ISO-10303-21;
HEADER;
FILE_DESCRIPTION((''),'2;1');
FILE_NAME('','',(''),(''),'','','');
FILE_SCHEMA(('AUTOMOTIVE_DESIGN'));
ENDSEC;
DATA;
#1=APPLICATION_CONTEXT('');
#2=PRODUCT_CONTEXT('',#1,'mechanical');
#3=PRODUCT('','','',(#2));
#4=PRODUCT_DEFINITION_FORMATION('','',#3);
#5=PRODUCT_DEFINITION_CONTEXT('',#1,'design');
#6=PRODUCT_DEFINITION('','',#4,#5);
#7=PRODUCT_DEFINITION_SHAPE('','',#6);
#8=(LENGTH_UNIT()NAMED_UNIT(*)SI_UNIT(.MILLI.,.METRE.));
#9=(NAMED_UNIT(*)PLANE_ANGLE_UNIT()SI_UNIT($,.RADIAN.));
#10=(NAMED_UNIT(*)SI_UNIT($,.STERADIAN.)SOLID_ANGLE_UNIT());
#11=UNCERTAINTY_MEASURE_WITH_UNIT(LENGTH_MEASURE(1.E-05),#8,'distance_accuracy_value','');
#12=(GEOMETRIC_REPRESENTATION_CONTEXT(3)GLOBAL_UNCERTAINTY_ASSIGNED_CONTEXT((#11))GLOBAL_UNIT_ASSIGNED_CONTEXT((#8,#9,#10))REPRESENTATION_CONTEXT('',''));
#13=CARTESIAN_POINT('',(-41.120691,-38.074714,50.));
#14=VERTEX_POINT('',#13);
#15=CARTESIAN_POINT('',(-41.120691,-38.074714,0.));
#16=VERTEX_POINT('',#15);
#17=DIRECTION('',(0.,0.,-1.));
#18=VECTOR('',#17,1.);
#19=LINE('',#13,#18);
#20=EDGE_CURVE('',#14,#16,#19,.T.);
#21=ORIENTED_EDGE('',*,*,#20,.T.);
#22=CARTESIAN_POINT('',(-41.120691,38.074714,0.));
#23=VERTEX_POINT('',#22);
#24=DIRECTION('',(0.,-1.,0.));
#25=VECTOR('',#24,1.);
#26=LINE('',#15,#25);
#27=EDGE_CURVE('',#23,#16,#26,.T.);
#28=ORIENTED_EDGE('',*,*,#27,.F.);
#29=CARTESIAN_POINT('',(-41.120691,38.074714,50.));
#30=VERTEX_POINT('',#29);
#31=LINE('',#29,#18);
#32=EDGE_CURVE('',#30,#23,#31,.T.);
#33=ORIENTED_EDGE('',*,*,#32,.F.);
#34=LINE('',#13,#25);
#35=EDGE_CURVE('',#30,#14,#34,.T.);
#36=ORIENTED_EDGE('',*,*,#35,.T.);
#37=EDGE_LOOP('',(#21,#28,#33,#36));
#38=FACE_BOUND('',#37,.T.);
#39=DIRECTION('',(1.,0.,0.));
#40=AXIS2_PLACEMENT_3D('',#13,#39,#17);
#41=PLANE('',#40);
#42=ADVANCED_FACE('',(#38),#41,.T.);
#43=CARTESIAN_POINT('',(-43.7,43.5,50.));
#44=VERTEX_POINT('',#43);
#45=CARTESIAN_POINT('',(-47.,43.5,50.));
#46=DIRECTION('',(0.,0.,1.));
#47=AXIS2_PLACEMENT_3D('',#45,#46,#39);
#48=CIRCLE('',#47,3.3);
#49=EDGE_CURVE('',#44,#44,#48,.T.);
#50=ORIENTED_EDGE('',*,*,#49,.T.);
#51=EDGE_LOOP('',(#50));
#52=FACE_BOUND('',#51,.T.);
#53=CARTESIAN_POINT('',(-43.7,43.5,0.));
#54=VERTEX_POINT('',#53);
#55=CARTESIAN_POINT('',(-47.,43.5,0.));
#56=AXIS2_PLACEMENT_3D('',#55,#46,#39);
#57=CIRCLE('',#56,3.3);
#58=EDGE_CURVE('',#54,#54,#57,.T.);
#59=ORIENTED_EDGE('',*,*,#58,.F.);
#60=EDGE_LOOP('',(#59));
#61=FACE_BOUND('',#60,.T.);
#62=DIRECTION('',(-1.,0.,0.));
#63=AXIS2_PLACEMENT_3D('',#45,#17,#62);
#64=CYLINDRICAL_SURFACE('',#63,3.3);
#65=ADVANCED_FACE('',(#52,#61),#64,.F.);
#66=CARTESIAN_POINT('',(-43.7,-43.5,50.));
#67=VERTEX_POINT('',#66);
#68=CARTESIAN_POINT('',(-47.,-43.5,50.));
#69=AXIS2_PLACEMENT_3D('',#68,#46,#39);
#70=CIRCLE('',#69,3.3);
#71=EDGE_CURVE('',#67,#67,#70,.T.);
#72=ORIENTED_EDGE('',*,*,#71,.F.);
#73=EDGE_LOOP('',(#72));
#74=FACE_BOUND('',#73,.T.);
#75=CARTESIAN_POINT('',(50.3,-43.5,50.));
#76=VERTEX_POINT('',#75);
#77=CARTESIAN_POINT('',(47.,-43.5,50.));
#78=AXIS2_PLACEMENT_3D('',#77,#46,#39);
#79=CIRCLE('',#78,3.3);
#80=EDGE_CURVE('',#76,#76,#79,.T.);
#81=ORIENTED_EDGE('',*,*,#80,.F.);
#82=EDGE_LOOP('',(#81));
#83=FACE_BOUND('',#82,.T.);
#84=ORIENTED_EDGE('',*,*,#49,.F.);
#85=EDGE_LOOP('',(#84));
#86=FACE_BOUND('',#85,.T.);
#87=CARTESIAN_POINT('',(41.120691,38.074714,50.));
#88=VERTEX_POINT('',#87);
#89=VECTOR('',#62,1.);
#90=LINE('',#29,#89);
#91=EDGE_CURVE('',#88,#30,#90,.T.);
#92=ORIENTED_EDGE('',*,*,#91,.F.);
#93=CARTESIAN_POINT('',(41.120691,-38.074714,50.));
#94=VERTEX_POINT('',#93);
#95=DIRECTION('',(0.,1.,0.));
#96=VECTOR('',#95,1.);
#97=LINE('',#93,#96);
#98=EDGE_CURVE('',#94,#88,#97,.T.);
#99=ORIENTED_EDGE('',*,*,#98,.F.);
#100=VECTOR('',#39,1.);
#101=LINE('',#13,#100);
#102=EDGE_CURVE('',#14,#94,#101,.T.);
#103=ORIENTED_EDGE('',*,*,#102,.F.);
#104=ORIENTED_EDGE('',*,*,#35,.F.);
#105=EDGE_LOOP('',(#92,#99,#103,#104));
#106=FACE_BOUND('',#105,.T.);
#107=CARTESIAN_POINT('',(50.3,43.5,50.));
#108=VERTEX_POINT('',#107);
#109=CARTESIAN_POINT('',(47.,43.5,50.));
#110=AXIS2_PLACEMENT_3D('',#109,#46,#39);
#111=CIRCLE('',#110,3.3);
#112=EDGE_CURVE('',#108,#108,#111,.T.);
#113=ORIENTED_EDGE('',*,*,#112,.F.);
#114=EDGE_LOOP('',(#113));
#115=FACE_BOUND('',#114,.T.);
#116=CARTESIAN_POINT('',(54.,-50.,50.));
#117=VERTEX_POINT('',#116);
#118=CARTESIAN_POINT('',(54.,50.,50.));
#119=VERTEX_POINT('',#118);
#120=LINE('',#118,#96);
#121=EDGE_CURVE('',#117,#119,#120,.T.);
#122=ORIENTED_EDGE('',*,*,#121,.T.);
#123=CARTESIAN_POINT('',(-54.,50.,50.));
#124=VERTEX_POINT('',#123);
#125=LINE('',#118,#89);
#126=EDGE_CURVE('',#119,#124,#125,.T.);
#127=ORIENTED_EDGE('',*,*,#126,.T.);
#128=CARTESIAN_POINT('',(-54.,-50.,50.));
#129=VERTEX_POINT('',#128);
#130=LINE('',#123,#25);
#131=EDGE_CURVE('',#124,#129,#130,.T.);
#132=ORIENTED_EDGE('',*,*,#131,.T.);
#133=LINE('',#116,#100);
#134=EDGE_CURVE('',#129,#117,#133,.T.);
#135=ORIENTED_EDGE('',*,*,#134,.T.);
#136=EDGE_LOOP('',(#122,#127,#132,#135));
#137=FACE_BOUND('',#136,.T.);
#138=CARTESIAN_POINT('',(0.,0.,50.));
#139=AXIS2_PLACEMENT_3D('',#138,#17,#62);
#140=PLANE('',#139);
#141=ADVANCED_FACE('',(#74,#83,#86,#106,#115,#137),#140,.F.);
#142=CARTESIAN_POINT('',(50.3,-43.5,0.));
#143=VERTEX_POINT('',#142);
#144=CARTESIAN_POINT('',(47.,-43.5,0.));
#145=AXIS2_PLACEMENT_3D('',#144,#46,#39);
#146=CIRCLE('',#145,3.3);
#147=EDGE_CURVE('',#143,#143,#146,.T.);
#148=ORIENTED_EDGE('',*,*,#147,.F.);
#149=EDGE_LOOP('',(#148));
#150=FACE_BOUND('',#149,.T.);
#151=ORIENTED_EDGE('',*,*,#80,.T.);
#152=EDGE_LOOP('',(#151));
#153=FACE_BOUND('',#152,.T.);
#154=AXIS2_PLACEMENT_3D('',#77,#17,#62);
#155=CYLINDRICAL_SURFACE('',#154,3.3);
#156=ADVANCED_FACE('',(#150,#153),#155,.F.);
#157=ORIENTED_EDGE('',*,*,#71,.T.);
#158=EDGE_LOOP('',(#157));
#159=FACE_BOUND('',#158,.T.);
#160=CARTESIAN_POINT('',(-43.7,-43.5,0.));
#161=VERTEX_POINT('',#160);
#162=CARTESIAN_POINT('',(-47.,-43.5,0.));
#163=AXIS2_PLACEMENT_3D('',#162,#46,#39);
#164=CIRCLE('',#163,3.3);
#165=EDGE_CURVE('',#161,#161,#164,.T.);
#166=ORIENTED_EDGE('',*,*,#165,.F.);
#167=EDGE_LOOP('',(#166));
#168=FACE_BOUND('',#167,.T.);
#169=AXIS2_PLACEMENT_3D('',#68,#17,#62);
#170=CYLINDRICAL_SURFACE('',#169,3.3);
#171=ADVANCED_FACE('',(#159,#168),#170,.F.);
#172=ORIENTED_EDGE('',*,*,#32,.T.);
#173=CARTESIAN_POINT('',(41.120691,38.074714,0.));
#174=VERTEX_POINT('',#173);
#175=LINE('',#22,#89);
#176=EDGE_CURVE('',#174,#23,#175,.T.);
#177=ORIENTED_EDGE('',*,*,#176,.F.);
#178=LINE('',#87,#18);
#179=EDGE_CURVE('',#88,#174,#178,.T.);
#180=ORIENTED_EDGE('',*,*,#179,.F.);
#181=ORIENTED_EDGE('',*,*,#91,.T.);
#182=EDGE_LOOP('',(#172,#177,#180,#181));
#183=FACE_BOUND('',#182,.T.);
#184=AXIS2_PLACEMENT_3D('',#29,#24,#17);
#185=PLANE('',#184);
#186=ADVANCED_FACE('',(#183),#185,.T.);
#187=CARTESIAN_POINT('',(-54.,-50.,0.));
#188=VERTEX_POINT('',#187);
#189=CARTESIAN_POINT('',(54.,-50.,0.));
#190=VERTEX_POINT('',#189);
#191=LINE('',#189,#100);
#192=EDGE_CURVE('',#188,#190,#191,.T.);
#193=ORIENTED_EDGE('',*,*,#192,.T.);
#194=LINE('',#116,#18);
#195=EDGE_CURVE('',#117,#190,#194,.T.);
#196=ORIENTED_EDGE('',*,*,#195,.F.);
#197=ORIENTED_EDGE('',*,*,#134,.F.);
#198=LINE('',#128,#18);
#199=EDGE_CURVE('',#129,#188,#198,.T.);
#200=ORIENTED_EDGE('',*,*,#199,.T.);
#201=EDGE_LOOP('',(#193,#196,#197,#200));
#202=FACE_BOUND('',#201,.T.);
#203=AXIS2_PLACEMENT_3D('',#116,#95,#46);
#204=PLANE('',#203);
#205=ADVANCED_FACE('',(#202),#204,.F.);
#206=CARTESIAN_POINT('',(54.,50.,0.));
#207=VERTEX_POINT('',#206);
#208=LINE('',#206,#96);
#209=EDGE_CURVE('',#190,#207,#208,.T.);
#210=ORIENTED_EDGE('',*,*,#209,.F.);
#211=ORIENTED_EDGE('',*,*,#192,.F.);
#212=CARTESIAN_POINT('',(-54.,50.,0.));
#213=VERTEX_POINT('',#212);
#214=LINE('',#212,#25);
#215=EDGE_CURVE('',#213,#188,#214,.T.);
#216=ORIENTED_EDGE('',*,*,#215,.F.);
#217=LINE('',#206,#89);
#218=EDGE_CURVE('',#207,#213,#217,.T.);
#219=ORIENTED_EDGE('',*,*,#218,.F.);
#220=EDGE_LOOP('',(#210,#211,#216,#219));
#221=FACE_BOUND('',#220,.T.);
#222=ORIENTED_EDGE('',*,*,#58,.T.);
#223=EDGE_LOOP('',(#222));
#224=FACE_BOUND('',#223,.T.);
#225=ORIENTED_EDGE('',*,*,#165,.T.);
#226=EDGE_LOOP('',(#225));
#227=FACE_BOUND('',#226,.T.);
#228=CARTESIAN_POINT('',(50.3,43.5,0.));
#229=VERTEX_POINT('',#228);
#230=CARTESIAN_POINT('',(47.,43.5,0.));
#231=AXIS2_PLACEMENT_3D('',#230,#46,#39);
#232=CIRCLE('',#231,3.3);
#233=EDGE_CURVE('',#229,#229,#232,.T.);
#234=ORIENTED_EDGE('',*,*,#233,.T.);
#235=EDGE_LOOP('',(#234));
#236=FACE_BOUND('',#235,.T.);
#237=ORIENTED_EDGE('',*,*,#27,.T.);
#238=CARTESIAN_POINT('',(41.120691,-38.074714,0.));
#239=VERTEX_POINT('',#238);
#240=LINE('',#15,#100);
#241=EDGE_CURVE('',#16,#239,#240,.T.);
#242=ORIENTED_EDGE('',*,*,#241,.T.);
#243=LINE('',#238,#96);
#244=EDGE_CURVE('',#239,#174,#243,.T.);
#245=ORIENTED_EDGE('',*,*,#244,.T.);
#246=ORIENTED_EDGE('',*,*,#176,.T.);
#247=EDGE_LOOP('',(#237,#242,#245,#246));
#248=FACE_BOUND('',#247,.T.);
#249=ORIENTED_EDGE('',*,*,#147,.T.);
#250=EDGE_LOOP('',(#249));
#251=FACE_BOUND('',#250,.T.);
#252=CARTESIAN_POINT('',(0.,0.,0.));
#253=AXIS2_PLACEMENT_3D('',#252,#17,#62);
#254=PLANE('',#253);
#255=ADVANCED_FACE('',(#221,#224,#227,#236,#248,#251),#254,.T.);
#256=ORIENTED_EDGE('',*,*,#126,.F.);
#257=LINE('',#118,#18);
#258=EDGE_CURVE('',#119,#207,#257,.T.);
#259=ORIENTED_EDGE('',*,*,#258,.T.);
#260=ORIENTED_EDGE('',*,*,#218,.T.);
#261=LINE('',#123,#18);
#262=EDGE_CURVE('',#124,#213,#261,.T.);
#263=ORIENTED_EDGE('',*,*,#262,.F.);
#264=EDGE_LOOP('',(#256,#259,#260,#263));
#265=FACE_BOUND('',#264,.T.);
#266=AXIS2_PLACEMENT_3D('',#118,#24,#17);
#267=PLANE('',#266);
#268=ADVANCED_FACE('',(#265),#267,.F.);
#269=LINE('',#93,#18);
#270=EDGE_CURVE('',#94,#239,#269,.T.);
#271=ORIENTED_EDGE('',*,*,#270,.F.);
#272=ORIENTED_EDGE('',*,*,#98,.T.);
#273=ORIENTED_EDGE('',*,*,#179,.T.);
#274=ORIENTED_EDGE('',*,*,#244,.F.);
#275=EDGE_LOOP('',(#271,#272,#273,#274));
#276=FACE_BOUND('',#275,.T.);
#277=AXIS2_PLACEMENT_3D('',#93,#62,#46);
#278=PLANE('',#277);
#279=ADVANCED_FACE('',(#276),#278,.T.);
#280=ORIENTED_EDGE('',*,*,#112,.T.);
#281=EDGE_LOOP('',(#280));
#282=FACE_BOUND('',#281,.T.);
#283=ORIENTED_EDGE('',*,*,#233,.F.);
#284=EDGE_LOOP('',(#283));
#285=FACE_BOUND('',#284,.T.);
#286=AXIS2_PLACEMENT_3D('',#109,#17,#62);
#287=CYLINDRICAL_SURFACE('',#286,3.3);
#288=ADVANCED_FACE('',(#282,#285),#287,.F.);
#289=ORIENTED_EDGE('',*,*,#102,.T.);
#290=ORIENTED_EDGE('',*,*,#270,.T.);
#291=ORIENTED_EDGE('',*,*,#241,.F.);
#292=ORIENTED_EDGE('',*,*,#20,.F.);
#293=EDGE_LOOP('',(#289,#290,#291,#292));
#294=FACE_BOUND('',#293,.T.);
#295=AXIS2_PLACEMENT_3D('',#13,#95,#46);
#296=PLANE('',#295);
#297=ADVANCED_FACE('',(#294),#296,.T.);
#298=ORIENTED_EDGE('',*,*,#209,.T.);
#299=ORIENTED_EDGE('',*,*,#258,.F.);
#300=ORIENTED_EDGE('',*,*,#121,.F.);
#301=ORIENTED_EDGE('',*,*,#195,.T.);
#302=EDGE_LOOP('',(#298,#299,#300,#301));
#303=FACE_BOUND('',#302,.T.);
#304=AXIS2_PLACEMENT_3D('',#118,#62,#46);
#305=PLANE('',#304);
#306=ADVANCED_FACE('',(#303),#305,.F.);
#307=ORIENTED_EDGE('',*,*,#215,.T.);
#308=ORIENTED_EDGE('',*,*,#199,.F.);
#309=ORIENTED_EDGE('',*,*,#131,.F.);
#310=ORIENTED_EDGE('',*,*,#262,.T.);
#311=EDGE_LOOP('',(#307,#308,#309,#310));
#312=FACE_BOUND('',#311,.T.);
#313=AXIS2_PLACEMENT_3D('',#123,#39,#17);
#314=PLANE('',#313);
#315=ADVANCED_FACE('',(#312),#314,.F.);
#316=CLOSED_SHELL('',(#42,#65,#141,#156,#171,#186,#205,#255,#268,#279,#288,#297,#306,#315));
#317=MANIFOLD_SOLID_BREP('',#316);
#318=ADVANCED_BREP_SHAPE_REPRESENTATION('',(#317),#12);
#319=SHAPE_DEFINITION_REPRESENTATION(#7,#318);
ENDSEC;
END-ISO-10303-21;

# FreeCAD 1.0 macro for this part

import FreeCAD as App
import Part
import Sketcher

V = App.Vector


def add_polygon(sketch, points):
    """Adds a closed chain of lines whose ends are joined by coincident constraints."""
    first, n = sketch.GeometryCount, len(points)
    for a, b in zip(points, points[1:] + points[:1]):
        sketch.addGeometry(Part.LineSegment(App.Vector(*a, 0), App.Vector(*b, 0)), False)
    for i in range(n):
        sketch.addConstraint(Sketcher.Constraint("Coincident", first + i, 2, first + (i + 1) % n, 1))

doc = App.newDocument("Part")
body = doc.addObject("PartDesign::Body", "Body")

# Sketch on XY plane
sketch1 = body.newObject("Sketcher::SketchObject", "Sketch")
sketch1.AttachmentSupport = (doc.getObject("XY_Plane"), [""])
sketch1.MapMode = "FlatFace"
add_polygon(sketch1, [(-54, 50), (-54, -50), (54, -50), (54, 50)])  # lines 0-3
sketch1.addGeometry(Part.Circle(V(-47, -43.5, 0), V(0, 0, 1), 3.3), False)  # 4
sketch1.addGeometry(Part.Circle(V(47, -43.5, 0), V(0, 0, 1), 3.3), False)  # 5
sketch1.addGeometry(Part.Circle(V(-47, 43.5, 0), V(0, 0, 1), 3.3), False)  # 6
add_polygon(sketch1, [(41.1, -38.1), (-41.1, -38.1), (-41.1, 38.1), (41.1, 38.1)])  # lines 7-10
sketch1.addGeometry(Part.Circle(V(47, 43.5, 0), V(0, 0, 1), 3.3), False)  # 11
sketch1.addConstraint([
    Sketcher.Constraint("Vertical", 0),
    Sketcher.Constraint("Horizontal", 1),
    Sketcher.Constraint("Vertical", 2),
    Sketcher.Constraint("Horizontal", 3),
    Sketcher.Constraint("Horizontal", 7),
    Sketcher.Constraint("Vertical", 8),
    Sketcher.Constraint("Horizontal", 9),
    Sketcher.Constraint("Vertical", 10),
    Sketcher.Constraint("Equal", 4, 5),
    Sketcher.Constraint("Equal", 5, 6),
    Sketcher.Constraint("Equal", 6, 11),
    Sketcher.Constraint("Symmetric", 5, 3, 6, 3, -1, 1),
    Sketcher.Constraint("Symmetric", 4, 3, 11, 3, -1, 1),
    Sketcher.Constraint("Symmetric", 0, 2, 2, 2, -1, 1),
    Sketcher.Constraint("Symmetric", 7, 2, 9, 2, -1, 1),
    Sketcher.Constraint("Symmetric", 4, 3, 5, 3, -2),
    Sketcher.Constraint("Diameter", 4, 6.6),
    Sketcher.Constraint("DistanceX", 1, 1, 1, 2, 108.0),
    Sketcher.Constraint("DistanceY", 0, 2, 0, 1, 100.0),
    Sketcher.Constraint("DistanceX", 4, 3, -1, 1, 47.0),
    Sketcher.Constraint("DistanceY", 4, 3, 6, 3, 87.0),
    Sketcher.Constraint("DistanceY", 8, 1, 8, 2, 76.149428),
    Sketcher.Constraint("DistanceX", 7, 2, 7, 1, 82.241382),
])
pad1 = body.newObject("PartDesign::Pad", "Pad")
pad1.Profile = sketch1
pad1.Length = 50

doc.recompute()
